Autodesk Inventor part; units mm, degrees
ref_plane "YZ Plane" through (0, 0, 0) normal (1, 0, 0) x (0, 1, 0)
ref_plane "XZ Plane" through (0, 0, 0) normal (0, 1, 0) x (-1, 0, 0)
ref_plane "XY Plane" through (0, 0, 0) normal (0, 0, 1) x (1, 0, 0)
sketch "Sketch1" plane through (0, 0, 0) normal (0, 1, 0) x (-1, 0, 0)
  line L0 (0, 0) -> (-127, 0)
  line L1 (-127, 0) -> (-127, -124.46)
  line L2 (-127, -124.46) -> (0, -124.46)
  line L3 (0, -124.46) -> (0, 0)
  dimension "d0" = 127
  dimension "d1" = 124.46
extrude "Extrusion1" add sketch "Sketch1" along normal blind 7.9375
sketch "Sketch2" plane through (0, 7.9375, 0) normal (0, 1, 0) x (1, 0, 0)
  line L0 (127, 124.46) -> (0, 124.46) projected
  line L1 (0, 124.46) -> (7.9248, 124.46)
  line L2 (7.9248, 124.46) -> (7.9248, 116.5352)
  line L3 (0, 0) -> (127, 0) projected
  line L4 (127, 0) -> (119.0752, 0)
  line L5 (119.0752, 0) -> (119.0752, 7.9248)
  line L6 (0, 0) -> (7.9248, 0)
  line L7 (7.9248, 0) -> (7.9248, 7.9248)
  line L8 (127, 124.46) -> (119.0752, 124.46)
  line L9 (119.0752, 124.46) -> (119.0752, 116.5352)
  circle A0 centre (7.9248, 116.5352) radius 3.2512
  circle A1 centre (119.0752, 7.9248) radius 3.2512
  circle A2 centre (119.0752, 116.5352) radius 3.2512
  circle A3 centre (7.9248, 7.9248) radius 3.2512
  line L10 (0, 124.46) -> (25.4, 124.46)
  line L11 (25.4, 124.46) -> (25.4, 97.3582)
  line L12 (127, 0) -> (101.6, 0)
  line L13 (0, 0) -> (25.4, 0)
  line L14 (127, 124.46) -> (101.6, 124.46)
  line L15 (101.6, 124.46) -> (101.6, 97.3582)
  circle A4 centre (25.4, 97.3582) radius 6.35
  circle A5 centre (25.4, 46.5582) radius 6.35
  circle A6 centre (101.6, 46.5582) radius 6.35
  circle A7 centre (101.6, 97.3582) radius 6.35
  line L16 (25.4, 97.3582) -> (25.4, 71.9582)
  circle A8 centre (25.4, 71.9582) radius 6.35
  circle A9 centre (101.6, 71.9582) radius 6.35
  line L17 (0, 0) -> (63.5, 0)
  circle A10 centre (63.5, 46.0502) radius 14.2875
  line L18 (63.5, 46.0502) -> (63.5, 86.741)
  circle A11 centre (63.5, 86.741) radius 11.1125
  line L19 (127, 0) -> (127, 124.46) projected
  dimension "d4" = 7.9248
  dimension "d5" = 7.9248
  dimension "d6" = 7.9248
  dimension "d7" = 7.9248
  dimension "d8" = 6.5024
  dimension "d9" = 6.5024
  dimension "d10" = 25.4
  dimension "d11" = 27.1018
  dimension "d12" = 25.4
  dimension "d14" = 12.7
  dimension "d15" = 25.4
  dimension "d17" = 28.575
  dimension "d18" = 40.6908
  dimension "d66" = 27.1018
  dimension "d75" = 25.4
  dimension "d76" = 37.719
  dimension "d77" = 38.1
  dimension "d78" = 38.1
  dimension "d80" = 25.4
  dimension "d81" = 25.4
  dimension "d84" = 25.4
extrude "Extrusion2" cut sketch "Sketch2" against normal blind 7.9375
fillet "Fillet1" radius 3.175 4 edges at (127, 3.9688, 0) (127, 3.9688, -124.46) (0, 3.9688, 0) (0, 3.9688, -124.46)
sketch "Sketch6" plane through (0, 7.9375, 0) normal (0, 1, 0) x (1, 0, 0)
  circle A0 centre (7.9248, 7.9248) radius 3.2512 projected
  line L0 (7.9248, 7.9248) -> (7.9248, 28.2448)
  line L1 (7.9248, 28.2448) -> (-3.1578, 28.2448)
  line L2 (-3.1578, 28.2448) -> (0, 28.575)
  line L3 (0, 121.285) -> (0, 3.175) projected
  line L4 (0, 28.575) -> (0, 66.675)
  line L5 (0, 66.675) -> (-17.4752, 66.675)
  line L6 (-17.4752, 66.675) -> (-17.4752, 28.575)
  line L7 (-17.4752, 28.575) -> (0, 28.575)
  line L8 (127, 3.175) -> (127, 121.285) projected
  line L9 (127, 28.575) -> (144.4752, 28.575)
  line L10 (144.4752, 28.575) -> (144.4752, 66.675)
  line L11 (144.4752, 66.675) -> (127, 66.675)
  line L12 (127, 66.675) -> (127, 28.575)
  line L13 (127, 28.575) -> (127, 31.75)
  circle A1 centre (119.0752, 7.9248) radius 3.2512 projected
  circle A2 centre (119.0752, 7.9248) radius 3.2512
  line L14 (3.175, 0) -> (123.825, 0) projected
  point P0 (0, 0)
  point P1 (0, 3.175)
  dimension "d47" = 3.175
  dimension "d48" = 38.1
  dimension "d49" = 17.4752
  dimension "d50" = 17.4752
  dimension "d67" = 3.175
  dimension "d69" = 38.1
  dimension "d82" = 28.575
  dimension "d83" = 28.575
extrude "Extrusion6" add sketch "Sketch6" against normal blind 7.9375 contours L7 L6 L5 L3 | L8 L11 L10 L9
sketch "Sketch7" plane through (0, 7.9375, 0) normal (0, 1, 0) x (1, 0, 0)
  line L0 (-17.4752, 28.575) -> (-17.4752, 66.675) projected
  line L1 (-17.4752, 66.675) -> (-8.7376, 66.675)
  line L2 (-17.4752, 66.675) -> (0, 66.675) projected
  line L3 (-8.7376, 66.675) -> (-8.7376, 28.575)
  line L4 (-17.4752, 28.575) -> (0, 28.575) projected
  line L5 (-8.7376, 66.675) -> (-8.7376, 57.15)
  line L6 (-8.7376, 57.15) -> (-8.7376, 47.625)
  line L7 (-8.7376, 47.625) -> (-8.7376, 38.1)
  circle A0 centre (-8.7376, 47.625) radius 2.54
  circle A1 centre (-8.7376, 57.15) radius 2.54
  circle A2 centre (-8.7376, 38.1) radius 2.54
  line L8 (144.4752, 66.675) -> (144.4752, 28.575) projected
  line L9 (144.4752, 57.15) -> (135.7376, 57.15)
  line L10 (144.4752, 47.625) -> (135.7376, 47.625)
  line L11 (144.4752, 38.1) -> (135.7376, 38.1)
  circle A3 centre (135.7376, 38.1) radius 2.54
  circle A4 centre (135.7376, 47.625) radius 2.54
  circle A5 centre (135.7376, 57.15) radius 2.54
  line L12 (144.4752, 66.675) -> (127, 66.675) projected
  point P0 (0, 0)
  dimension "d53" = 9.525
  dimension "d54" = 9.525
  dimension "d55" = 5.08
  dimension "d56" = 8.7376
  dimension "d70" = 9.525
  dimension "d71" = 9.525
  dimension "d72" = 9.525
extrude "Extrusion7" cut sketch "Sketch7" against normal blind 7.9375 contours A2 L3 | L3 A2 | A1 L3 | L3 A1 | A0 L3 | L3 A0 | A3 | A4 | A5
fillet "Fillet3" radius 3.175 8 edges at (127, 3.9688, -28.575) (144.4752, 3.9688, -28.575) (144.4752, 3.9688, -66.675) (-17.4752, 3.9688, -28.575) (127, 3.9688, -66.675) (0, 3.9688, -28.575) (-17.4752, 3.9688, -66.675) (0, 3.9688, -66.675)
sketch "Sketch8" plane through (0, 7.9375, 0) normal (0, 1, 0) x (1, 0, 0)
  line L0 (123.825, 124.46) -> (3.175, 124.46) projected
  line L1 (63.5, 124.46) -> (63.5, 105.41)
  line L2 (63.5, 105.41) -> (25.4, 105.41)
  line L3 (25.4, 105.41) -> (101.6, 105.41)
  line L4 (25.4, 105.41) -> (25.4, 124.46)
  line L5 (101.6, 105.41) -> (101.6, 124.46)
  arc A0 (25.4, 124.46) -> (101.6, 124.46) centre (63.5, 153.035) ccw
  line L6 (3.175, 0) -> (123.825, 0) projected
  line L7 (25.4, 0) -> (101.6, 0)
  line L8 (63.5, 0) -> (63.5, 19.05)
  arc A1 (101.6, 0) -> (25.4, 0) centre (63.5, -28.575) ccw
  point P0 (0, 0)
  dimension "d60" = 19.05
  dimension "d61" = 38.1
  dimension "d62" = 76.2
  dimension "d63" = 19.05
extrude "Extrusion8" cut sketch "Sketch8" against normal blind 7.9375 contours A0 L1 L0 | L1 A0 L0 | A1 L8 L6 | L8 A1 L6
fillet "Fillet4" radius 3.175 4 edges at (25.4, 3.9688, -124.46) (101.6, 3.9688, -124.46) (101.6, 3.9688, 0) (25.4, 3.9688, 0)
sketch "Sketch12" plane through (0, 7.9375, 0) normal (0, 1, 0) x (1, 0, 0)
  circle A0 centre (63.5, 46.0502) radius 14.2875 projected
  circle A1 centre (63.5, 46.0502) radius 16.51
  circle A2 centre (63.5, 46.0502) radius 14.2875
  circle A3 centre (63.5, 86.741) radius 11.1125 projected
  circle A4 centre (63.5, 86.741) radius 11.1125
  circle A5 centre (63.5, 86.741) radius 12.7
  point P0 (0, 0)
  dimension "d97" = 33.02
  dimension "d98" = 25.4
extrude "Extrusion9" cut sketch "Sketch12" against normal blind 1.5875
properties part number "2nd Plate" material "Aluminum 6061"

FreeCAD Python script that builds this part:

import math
import FreeCAD as App
import Part
import Sketcher
from FreeCAD import Vector
Q = App.Units.Quantity


def edges_at(feature, points):
    """Names of the edges that pass closest to the given points."""
    edges = feature.Shape.Edges
    near = lambda p: min(range(len(edges)), key=lambda i: edges[i].distToShape(Part.Vertex(*p))[0])
    return sorted({f"Edge{near(p) + 1}" for p in points})


def add_polygon(sketch, points):
    """Adds a closed chain of lines whose ends are joined by coincident constraints."""
    first, n = sketch.GeometryCount, len(points)
    for a, b in zip(points, points[1:] + points[:1]):
        sketch.addGeometry(Part.LineSegment(App.Vector(*a, 0), App.Vector(*b, 0)), False)
    for i in range(n):
        sketch.addConstraint(Sketcher.Constraint("Coincident", first + i, 2, first + (i + 1) % n, 1))

doc = App.newDocument("Part")
params = doc.addObject("Spreadsheet::Sheet", "Params")
for row, (alias, value) in enumerate([
    ("sketch1_width", "5 in"),
    ("sketch1_height", "4.9 in"),
    ("pad1_length", "0.3125 in"),
    ("sketch2_diameter", "0.5 in"),
    ("sketch2_diameter2", "0.256 in"),
    ("sketch2_diameter3", "1.125 in"),
    ("sketch2_diameter4", "0.875 in"),
    ("pocket1_length", "0.3125 in"),
    ("fillet_radius", "0.125 in"),
    ("sketch3_height", "1.5 in"),
    ("sketch3_width", "0.688 in"),
    ("pad2_length", "0.3125 in"),
    ("sketch4_diameter", "0.2 in"),
    ("pocket2_length", "0.3125 in"),
    ("fillet2_radius", "0.125 in"),
    ("sketch5_width", "3 in"),
    ("sketch5_radius", "1.875 in"),
    ("pocket3_length", "0.3125 in"),
    ("fillet3_radius", "0.125 in"),
    ("sketch6_diameter", "1 in"),
    ("sketch6_diameter2", "1.3 in"),
    ("sketch6_diameter3", "1.125 in"),
    ("sketch6_diameter4", "0.875 in"),
    ("pocket4_length", "0.0625 in"),
], start=1):
    params.set(f"A{row}", alias)
    params.set(f"B{row}", "=" + value)
    params.setAlias(f"B{row}", alias)

body = doc.addObject("PartDesign::Body", "Body")

sketch1 = doc.addObject("Sketcher::SketchObject", "Sketch")
body.addObject(sketch1)
sketch1.AttachmentSupport = (doc.XZ_Plane, [""])
sketch1.MapMode = "FlatFace"
add_polygon(sketch1, [(0, -124), (0, 0), (127, 0), (127, -124)])
sketch1.addConstraint(Sketcher.Constraint("Vertical", 0))
sketch1.addConstraint(Sketcher.Constraint("Horizontal", 1))
sketch1.addConstraint(Sketcher.Constraint("Vertical", 2))
sketch1.addConstraint(Sketcher.Constraint("Horizontal", 3))
sketch1.addConstraint(Sketcher.Constraint("Coincident", 0, 2, -1, 1))
sketch1.addConstraint(Sketcher.Constraint("DistanceX", 1, 1, 1, 2, Q("5 in")))
sketch1.addConstraint(Sketcher.Constraint("DistanceY", 0, 1, 0, 2, Q("4.9 in")))
sketch1.setExpression("Constraints[9]", "Params.sketch1_width")
sketch1.setExpression("Constraints[10]", "Params.sketch1_height")
pad1 = doc.addObject("PartDesign::Pad", "Pad")
body.addObject(pad1)
pad1.Profile = sketch1
pad1.setExpression("Length", "Params.pad1_length")
pad1.Reversed = True

sketch2 = doc.addObject("Sketcher::SketchObject", "Sketch001")
body.addObject(sketch2)
sketch2.AttachmentSupport = (doc.XZ_Plane, [""])
sketch2.MapMode = "FlatFace"
sketch2.AttachmentOffset = App.Placement(Vector(0, 0, -0.3125 * 25.4), App.Rotation())
sketch2.addGeometry(Part.Circle(Vector(119.1, -116.5, 0), Vector(0, 0, 1), 3.3), False)
sketch2.addGeometry(Part.Circle(Vector(101.6, -97.4, 0), Vector(0, 0, 1), 6.3), False)
sketch2.addGeometry(Part.Circle(Vector(25.4, -72, 0), Vector(0, 0, 1), 6.3), False)
sketch2.addGeometry(Part.Circle(Vector(25.4, -97.4, 0), Vector(0, 0, 1), 6.3), False)
sketch2.addGeometry(Part.Circle(Vector(7.9, -116.5, 0), Vector(0, 0, 1), 3.3), False)
sketch2.addGeometry(Part.Circle(Vector(7.9, -7.9, 0), Vector(0, 0, 1), 3.3), False)
sketch2.addGeometry(Part.Circle(Vector(119.1, -7.9, 0), Vector(0, 0, 1), 3.3), False)
sketch2.addGeometry(Part.Circle(Vector(25.4, -46.6, 0), Vector(0, 0, 1), 6.3), False)
sketch2.addGeometry(Part.Circle(Vector(101.6, -46.6, 0), Vector(0, 0, 1), 6.3), False)
sketch2.addGeometry(Part.Circle(Vector(101.6, -72, 0), Vector(0, 0, 1), 6.3), False)
sketch2.addGeometry(Part.Circle(Vector(63.5, -46.1, 0), Vector(0, 0, 1), 14.3), False)
sketch2.addGeometry(Part.Circle(Vector(63.5, -86.7, 0), Vector(0, 0, 1), 11.1), False)
sketch2.addConstraint(Sketcher.Constraint("Equal", 1, 2))
sketch2.addConstraint(Sketcher.Constraint("Equal", 2, 3))
sketch2.addConstraint(Sketcher.Constraint("Equal", 0, 4))
sketch2.addConstraint(Sketcher.Constraint("Equal", 4, 5))
sketch2.addConstraint(Sketcher.Constraint("Equal", 5, 6))
sketch2.addConstraint(Sketcher.Constraint("Equal", 3, 7))
sketch2.addConstraint(Sketcher.Constraint("Equal", 7, 8))
sketch2.addConstraint(Sketcher.Constraint("Equal", 8, 9))
sketch2.addConstraint(Sketcher.Constraint("Horizontal", 1, 3, 3, 3))
sketch2.addConstraint(Sketcher.Constraint("Horizontal", 0, 3, 4, 3))
sketch2.addConstraint(Sketcher.Constraint("Horizontal", 5, 3, 6, 3))
sketch2.addConstraint(Sketcher.Constraint("Horizontal", 7, 3, 8, 3))
sketch2.addConstraint(Sketcher.Constraint("Horizontal", 2, 3, 9, 3))
sketch2.addConstraint(Sketcher.Constraint("Vertical", 2, 3, 3, 3))
sketch2.addConstraint(Sketcher.Constraint("Vertical", 4, 3, 5, 3))
sketch2.addConstraint(Sketcher.Constraint("Vertical", 0, 3, 6, 3))
sketch2.addConstraint(Sketcher.Constraint("Vertical", 3, 3, 7, 3))
sketch2.addConstraint(Sketcher.Constraint("Vertical", 1, 3, 8, 3))
sketch2.addConstraint(Sketcher.Constraint("Vertical", 8, 3, 9, 3))
sketch2.addConstraint(Sketcher.Constraint("Vertical", 10, 3, 11, 3))
sketch2.addConstraint(Sketcher.Constraint("Diameter", 1, Q("0.5 in")))
sketch2.addConstraint(Sketcher.Constraint("Diameter", 0, Q("0.256 in")))
sketch2.addConstraint(Sketcher.Constraint("Diameter", 10, Q("1.125 in")))
sketch2.addConstraint(Sketcher.Constraint("DistanceX", -1, 1, 2, 3, Q("1 in")))
sketch2.addConstraint(Sketcher.Constraint("DistanceY", 1, 3, 2, 3, Q("1 in")))
sketch2.addConstraint(Sketcher.Constraint("DistanceY", 2, 3, 7, 3, Q("1 in")))
sketch2.addConstraint(Sketcher.Constraint("DistanceX", 10, 3, 8, 3, Q("1.5 in")))
sketch2.addConstraint(Sketcher.Constraint("DistanceX", 7, 3, 10, 3, Q("1.5 in")))
sketch2.addConstraint(Sketcher.Constraint("Diameter", 11, Q("0.875 in")))
sketch2.addConstraint(Sketcher.Constraint("DistanceX", -1, 1, 4, 3, Q("0.312 in")))
sketch2.addConstraint(Sketcher.Constraint("DistanceY", 5, 3, -1, 1, Q("0.312 in")))
sketch2.addConstraint(Sketcher.Constraint("DistanceY", 11, 3, 10, 3, Q("1.602 in")))
sketch2.addConstraint(Sketcher.Constraint("DistanceY", 8, 3, 10, 3, Q("0.02 in")))
sketch2.addConstraint(Sketcher.Constraint("DistanceX", -1, 1, 0, 3, Q("4.688 in")))
sketch2.addConstraint(Sketcher.Constraint("DistanceY", 0, 3, -1, 1, Q("4.588 in")))
sketch2.addConstraint(Sketcher.Constraint("DistanceY", 1, 3, -1, 1, Q("3.833 in")))
sketch2.setExpression("Constraints[20]", "Params.sketch2_diameter")
sketch2.setExpression("Constraints[21]", "Params.sketch2_diameter2")
sketch2.setExpression("Constraints[22]", "Params.sketch2_diameter3")
sketch2.setExpression("Constraints[28]", "Params.sketch2_diameter4")
pocket1 = doc.addObject("PartDesign::Pocket", "Pocket")
body.addObject(pocket1)
pocket1.Profile = sketch2
pocket1.setExpression("Length", "Params.pocket1_length")
pocket1.Reversed = True
doc.recompute()

fillet = doc.addObject("PartDesign::Fillet", "Fillet")
body.addObject(fillet)
fillet.Base = (pocket1, edges_at(pocket1, [
    (127, 3.969, 0),
    (127, 3.969, -124.46),
    (0, 3.969, 0),
    (0, 3.969, -124.46),
]))
fillet.setExpression("Radius", "Params.fillet_radius")

sketch3 = doc.addObject("Sketcher::SketchObject", "Sketch002")
body.addObject(sketch3)
sketch3.AttachmentSupport = (doc.XZ_Plane, [""])
sketch3.MapMode = "FlatFace"
sketch3.AttachmentOffset = App.Placement(Vector(0, 0, -0.3125 * 25.4), App.Rotation())
add_polygon(sketch3, [(-17, -29), (0, -29), (0, -67), (-17, -67)])
add_polygon(sketch3, [(127, -67), (127, -29), (144, -29), (144, -67)])
sketch3.addConstraint(Sketcher.Constraint("Horizontal", 0))
sketch3.addConstraint(Sketcher.Constraint("Vertical", 1))
sketch3.addConstraint(Sketcher.Constraint("Horizontal", 2))
sketch3.addConstraint(Sketcher.Constraint("Vertical", 3))
sketch3.addConstraint(Sketcher.Constraint("Vertical", 4))
sketch3.addConstraint(Sketcher.Constraint("Horizontal", 5))
sketch3.addConstraint(Sketcher.Constraint("Vertical", 6))
sketch3.addConstraint(Sketcher.Constraint("Horizontal", 7))
sketch3.addConstraint(Sketcher.Constraint("PointOnObject", 0, 2, -2))
sketch3.addConstraint(Sketcher.Constraint("Horizontal", 3, 2, 4, 2))
sketch3.addConstraint(Sketcher.Constraint("Horizontal", 2, 2, 6, 2))
sketch3.addConstraint(Sketcher.Constraint("Equal", 2, 5))
sketch3.addConstraint(Sketcher.Constraint("DistanceY", 1, 2, 1, 1, Q("1.5 in")))
sketch3.addConstraint(Sketcher.Constraint("DistanceX", 0, 1, 0, 2, Q("0.688 in")))
sketch3.addConstraint(Sketcher.Constraint("DistanceY", 0, 2, -1, 1, Q("1.125 in")))
sketch3.addConstraint(Sketcher.Constraint("DistanceX", -1, 1, 4, 2, Q("5 in")))
sketch3.setExpression("Constraints[20]", "Params.sketch3_height")
sketch3.setExpression("Constraints[21]", "Params.sketch3_width")
pad2 = doc.addObject("PartDesign::Pad", "Pad001")
body.addObject(pad2)
pad2.Profile = sketch3
pad2.setExpression("Length", "Params.pad2_length")

sketch4 = doc.addObject("Sketcher::SketchObject", "Sketch003")
body.addObject(sketch4)
sketch4.AttachmentSupport = (doc.XZ_Plane, [""])
sketch4.MapMode = "FlatFace"
sketch4.AttachmentOffset = App.Placement(Vector(0, 0, -0.3125 * 25.4), App.Rotation())
sketch4.addGeometry(Part.Circle(Vector(-8.7, -38.1, 0), Vector(0, 0, 1), 2.5), False)
sketch4.addGeometry(Part.Circle(Vector(-8.7, -57.1, 0), Vector(0, 0, 1), 2.5), False)
sketch4.addGeometry(Part.Circle(Vector(-8.7, -47.6, 0), Vector(0, 0, 1), 2.5), False)
sketch4.addGeometry(Part.Circle(Vector(135.7, -38.1, 0), Vector(0, 0, 1), 2.5), False)
sketch4.addGeometry(Part.Circle(Vector(135.7, -47.6, 0), Vector(0, 0, 1), 2.5), False)
sketch4.addGeometry(Part.Circle(Vector(135.7, -57.1, 0), Vector(0, 0, 1), 2.5), False)
sketch4.addConstraint(Sketcher.Constraint("Equal", 0, 1))
sketch4.addConstraint(Sketcher.Constraint("Equal", 1, 2))
sketch4.addConstraint(Sketcher.Constraint("Equal", 2, 3))
sketch4.addConstraint(Sketcher.Constraint("Equal", 3, 4))
sketch4.addConstraint(Sketcher.Constraint("Equal", 4, 5))
sketch4.addConstraint(Sketcher.Constraint("Horizontal", 0, 3, 3, 3))
sketch4.addConstraint(Sketcher.Constraint("Horizontal", 2, 3, 4, 3))
sketch4.addConstraint(Sketcher.Constraint("Horizontal", 1, 3, 5, 3))
sketch4.addConstraint(Sketcher.Constraint("Vertical", 0, 3, 1, 3))
sketch4.addConstraint(Sketcher.Constraint("Vertical", 1, 3, 2, 3))
sketch4.addConstraint(Sketcher.Constraint("Vertical", 3, 3, 4, 3))
sketch4.addConstraint(Sketcher.Constraint("Vertical", 4, 3, 5, 3))
sketch4.addConstraint(Sketcher.Constraint("Diameter", 0, Q("0.2 in")))
sketch4.addConstraint(Sketcher.Constraint("DistanceX", 0, 3, -1, 1, Q("0.344 in")))
sketch4.addConstraint(Sketcher.Constraint("DistanceY", 2, 3, 0, 3, Q("0.375 in")))
sketch4.addConstraint(Sketcher.Constraint("DistanceY", 1, 3, 2, 3, Q("0.375 in")))
sketch4.addConstraint(Sketcher.Constraint("DistanceY", 0, 3, -1, 1, Q("1.5 in")))
sketch4.addConstraint(Sketcher.Constraint("DistanceX", -1, 1, 3, 3, Q("5.344 in")))
sketch4.setExpression("Constraints[12]", "Params.sketch4_diameter")
pocket2 = doc.addObject("PartDesign::Pocket", "Pocket001")
body.addObject(pocket2)
pocket2.Profile = sketch4
pocket2.setExpression("Length", "Params.pocket2_length")
pocket2.Reversed = True
doc.recompute()

fillet2 = doc.addObject("PartDesign::Fillet", "Fillet001")
body.addObject(fillet2)
fillet2.Base = (pocket2, edges_at(pocket2, [
    (127, 3.969, -28.575),
    (144.475, 3.969, -28.575),
    (144.475, 3.969, -66.675),
    (-17.475, 3.969, -28.575),
    (127, 3.969, -66.675),
    (0, 3.969, -28.575),
    (-17.475, 3.969, -66.675),
    (0, 3.969, -66.675),
]))
fillet2.setExpression("Radius", "Params.fillet2_radius")

sketch5 = doc.addObject("Sketcher::SketchObject", "Sketch004")
body.addObject(sketch5)
sketch5.AttachmentSupport = (doc.XZ_Plane, [""])
sketch5.MapMode = "FlatFace"
sketch5.AttachmentOffset = App.Placement(Vector(0, 0, -0.3125 * 25.4), App.Rotation())
sketch5.addGeometry(Part.LineSegment(Vector(102, -124, 0), Vector(25, -124, 0)), False)
sketch5.addGeometry(Part.ArcOfCircle(Part.Circle(Vector(64, -153, 0), Vector(0, 0, 1), 48), math.radians(37), math.radians(143)), False)
sketch5.addGeometry(Part.LineSegment(Vector(25, 0, 0), Vector(102, 0, 0)), False)
sketch5.addGeometry(Part.ArcOfCircle(Part.Circle(Vector(64, 29, 0), Vector(0, 0, 1), 48), math.radians(-143), math.radians(-37)), False)
sketch5.addConstraint(Sketcher.Constraint("Coincident", 0, 1, 1, 1))
sketch5.addConstraint(Sketcher.Constraint("Coincident", 1, 2, 0, 2))
sketch5.addConstraint(Sketcher.Constraint("Coincident", 2, 1, 3, 1))
sketch5.addConstraint(Sketcher.Constraint("Coincident", 3, 2, 2, 2))
sketch5.addConstraint(Sketcher.Constraint("Horizontal", 0))
sketch5.addConstraint(Sketcher.Constraint("Horizontal", 2))
sketch5.addConstraint(Sketcher.Constraint("Equal", 1, 3))
sketch5.addConstraint(Sketcher.Constraint("PointOnObject", 2, 1, -1))
sketch5.addConstraint(Sketcher.Constraint("Vertical", 1, 3, 3, 3))
sketch5.addConstraint(Sketcher.Constraint("Vertical", 1, 2, 2, 1))
sketch5.addConstraint(Sketcher.Constraint("DistanceX", 0, 2, 0, 1, Q("3 in")))
sketch5.addConstraint(Sketcher.Constraint("DistanceX", -1, 1, 0, 1, Q("4 in")))
sketch5.addConstraint(Sketcher.Constraint("Radius", 1, Q("1.875 in")))
sketch5.addConstraint(Sketcher.Constraint("DistanceY", 0, 1, -1, 1, Q("4.9 in")))
sketch5.setExpression("Constraints[10]", "Params.sketch5_width")
sketch5.setExpression("Constraints[12]", "Params.sketch5_radius")
pocket3 = doc.addObject("PartDesign::Pocket", "Pocket002")
body.addObject(pocket3)
pocket3.Profile = sketch5
pocket3.setExpression("Length", "Params.pocket3_length")
pocket3.Reversed = True
doc.recompute()

fillet3 = doc.addObject("PartDesign::Fillet", "Fillet002")
body.addObject(fillet3)
fillet3.Base = (pocket3, edges_at(pocket3, [
    (25.4, 3.969, -124.46),
    (101.6, 3.969, -124.46),
    (101.6, 3.969, 0),
    (25.4, 3.969, 0),
]))
fillet3.setExpression("Radius", "Params.fillet3_radius")

sketch6 = doc.addObject("Sketcher::SketchObject", "Sketch005")
body.addObject(sketch6)
sketch6.AttachmentSupport = (doc.XZ_Plane, [""])
sketch6.MapMode = "FlatFace"
sketch6.AttachmentOffset = App.Placement(Vector(0, 0, -0.3125 * 25.4), App.Rotation())
sketch6.addGeometry(Part.Circle(Vector(64, -46, 0), Vector(0, 0, 1), 17), False)
sketch6.addGeometry(Part.Circle(Vector(64, -46, 0), Vector(0, 0, 1), 14), False)
sketch6.addGeometry(Part.Circle(Vector(64, -87, 0), Vector(0, 0, 1), 13), False)
sketch6.addGeometry(Part.Circle(Vector(64, -87, 0), Vector(0, 0, 1), 11), False)
sketch6.addConstraint(Sketcher.Constraint("Coincident", 1, 3, 0, 3))
sketch6.addConstraint(Sketcher.Constraint("Coincident", 3, 3, 2, 3))
sketch6.addConstraint(Sketcher.Constraint("Vertical", 1, 3, 2, 3))
sketch6.addConstraint(Sketcher.Constraint("Diameter", 2, Q("1 in")))
sketch6.addConstraint(Sketcher.Constraint("Diameter", 0, Q("1.3 in")))
sketch6.addConstraint(Sketcher.Constraint("Diameter", 1, Q("1.125 in")))
sketch6.addConstraint(Sketcher.Constraint("Diameter", 3, Q("0.875 in")))
sketch6.addConstraint(Sketcher.Constraint("DistanceX", -1, 1, 0, 3, Q("2.5 in")))
sketch6.addConstraint(Sketcher.Constraint("DistanceY", 0, 3, -1, 1, Q("1.813 in")))
sketch6.addConstraint(Sketcher.Constraint("DistanceY", 2, 3, -1, 1, Q("3.415 in")))
sketch6.setExpression("Constraints[3]", "Params.sketch6_diameter")
sketch6.setExpression("Constraints[4]", "Params.sketch6_diameter2")
sketch6.setExpression("Constraints[5]", "Params.sketch6_diameter3")
sketch6.setExpression("Constraints[6]", "Params.sketch6_diameter4")
pocket4 = doc.addObject("PartDesign::Pocket", "Pocket003")
body.addObject(pocket4)
pocket4.Profile = sketch6
pocket4.setExpression("Length", "Params.pocket4_length")
pocket4.Reversed = True

doc.recompute()
